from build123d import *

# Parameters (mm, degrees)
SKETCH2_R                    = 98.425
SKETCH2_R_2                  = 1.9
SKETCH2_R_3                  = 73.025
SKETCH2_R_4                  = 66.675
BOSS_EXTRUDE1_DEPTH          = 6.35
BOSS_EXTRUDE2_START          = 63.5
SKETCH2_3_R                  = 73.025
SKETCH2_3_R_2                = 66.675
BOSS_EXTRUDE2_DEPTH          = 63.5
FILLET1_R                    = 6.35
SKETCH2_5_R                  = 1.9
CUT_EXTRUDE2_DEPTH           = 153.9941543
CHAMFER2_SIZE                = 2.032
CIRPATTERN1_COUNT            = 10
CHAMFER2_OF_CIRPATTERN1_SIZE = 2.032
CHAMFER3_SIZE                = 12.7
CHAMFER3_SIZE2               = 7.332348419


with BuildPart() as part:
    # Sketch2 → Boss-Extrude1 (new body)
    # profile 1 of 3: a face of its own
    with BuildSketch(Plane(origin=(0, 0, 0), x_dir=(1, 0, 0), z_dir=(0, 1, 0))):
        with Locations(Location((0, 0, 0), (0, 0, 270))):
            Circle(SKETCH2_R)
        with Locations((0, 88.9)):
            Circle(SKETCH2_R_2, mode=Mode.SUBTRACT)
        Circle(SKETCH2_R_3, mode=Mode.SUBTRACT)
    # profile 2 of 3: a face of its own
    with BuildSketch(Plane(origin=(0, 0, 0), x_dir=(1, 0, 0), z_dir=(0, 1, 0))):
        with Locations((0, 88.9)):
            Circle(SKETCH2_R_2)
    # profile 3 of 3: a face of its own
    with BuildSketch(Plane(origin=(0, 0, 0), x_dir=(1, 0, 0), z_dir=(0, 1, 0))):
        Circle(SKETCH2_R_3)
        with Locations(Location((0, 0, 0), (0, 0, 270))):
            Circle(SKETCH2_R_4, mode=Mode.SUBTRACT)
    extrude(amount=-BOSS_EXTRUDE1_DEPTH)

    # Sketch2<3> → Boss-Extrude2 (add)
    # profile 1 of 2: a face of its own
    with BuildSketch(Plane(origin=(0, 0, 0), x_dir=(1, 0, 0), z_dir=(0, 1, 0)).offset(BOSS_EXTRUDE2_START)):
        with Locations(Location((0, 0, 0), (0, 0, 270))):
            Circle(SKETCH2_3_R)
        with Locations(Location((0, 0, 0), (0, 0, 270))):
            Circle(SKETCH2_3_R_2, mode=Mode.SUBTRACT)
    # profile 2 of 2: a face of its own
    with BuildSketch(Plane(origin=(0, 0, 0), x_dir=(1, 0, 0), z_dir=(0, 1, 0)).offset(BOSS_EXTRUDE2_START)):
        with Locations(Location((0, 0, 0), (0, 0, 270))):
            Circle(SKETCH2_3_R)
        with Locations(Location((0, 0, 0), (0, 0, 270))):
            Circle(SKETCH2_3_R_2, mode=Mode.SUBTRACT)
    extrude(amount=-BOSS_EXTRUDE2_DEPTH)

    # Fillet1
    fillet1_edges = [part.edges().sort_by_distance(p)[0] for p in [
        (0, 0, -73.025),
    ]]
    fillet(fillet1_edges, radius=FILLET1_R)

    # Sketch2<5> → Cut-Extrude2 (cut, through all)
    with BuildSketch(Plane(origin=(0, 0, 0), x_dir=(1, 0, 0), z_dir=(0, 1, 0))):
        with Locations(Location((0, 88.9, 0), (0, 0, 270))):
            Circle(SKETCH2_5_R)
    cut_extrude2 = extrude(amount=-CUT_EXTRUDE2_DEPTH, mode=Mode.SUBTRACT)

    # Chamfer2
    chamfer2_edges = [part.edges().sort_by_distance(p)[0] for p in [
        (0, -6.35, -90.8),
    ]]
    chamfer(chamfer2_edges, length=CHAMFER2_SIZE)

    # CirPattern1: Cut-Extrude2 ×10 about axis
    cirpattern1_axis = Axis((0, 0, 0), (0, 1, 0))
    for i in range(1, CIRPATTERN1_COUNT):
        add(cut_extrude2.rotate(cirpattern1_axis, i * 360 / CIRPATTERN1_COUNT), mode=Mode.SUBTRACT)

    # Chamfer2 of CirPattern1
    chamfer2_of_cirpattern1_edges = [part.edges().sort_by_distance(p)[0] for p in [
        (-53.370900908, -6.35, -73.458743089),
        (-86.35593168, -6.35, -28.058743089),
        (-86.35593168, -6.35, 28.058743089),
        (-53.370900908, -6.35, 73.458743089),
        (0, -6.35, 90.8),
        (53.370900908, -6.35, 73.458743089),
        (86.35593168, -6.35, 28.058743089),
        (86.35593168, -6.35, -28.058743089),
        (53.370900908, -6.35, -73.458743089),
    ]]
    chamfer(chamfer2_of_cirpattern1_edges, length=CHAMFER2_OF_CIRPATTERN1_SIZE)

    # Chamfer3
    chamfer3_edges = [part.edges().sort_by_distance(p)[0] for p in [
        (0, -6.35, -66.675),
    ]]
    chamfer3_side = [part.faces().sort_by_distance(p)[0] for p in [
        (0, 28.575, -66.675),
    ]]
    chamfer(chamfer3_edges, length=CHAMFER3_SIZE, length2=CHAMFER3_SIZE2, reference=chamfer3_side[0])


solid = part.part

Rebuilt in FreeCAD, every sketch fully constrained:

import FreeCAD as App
import Part
import Sketcher
from FreeCAD import Vector
Q = App.Units.Quantity


def edges_at(feature, points):
    """Names of the edges that pass closest to the given points."""
    edges = feature.Shape.Edges
    near = lambda p: min(range(len(edges)), key=lambda i: edges[i].distToShape(Part.Vertex(*p))[0])
    return sorted({f"Edge{near(p) + 1}" for p in points})

doc = App.newDocument("Part")
body = doc.addObject("PartDesign::Body", "Body")

# Sketch on XZ plane
sketch1 = body.newObject("Sketcher::SketchObject", "Sketch")
sketch1.AttachmentSupport = (doc.getObject("XZ_Plane"), [""])
sketch1.MapMode = "FlatFace"
sketch1.addGeometry(Part.Circle(Vector(0, 0, 0), Vector(0, 0, 1), 98), False)
sketch1.addGeometry(Part.Circle(Vector(0, 0, 0), Vector(0, 0, 1), 67), False)
sketch1.addConstraint(Sketcher.Constraint("Coincident", 0, 3, -1, 1))
sketch1.addConstraint(Sketcher.Constraint("Coincident", 1, 3, -1, 1))
sketch1.addConstraint(Sketcher.Constraint("Diameter", 0, Q("7.75 in")))
sketch1.addConstraint(Sketcher.Constraint("Diameter", 1, Q("5.25 in")))
pad1 = body.newObject("PartDesign::Pad", "Pad")
pad1.Profile = sketch1
pad1.Length = Q("0.25 in")

# Sketch on XZ plane
sketch2 = body.newObject("Sketcher::SketchObject", "Sketch001")
sketch2.AttachmentSupport = (doc.getObject("XZ_Plane"), [""])
sketch2.MapMode = "FlatFace"
sketch2.AttachmentOffset = App.Placement(Vector(0, 0, -2.5 * 25.4), App.Rotation())
sketch2.addGeometry(Part.Circle(Vector(0, 0, 0), Vector(0, 0, 1), 73), False)
sketch2.addGeometry(Part.Circle(Vector(0, 0, 0), Vector(0, 0, 1), 67), False)
sketch2.addConstraint(Sketcher.Constraint("Coincident", 0, 3, -1, 1))
sketch2.addConstraint(Sketcher.Constraint("Coincident", 1, 3, -1, 1))
sketch2.addConstraint(Sketcher.Constraint("Diameter", 0, Q("5.75 in")))
sketch2.addConstraint(Sketcher.Constraint("Diameter", 1, Q("5.25 in")))
pad2 = body.newObject("PartDesign::Pad", "Pad001")
pad2.Profile = sketch2
pad2.Length = Q("2.5 in")
doc.recompute()

fillet = body.newObject("PartDesign::Fillet", "Fillet")
fillet.Base = (pad2, edges_at(pad2, [(0, 0, -73.025)]))
fillet.Radius = Q("0.25 in")

# Sketch on XZ plane
sketch3 = body.newObject("Sketcher::SketchObject", "Sketch002")
sketch3.AttachmentSupport = (doc.getObject("XZ_Plane"), [""])
sketch3.MapMode = "FlatFace"
sketch3.addGeometry(Part.Circle(Vector(0, -88.9, 0), Vector(0, 0, 1), 1.9), False)
sketch3.addConstraint(Sketcher.Constraint("PointOnObject", 0, 3, -2))
sketch3.addConstraint(Sketcher.Constraint("DistanceY", 0, 3, -1, 1, Q("3.5 in")))
sketch3.addConstraint(Sketcher.Constraint("Diameter", 0, 3.8))
pocket1 = body.newObject("PartDesign::Pocket", "Pocket")
pocket1.Profile = sketch3
pocket1.Type = "ThroughAll"
pocket1.Reversed = True
doc.recompute()

chamfer = body.newObject("PartDesign::Chamfer", "Chamfer")
chamfer.Base = (pocket1, edges_at(pocket1, [(0, -6.35, -90.8)]))
chamfer.Size = Q("0.08 in")
doc.recompute()

polarpattern = body.newObject("PartDesign::PolarPattern", "PolarPattern")
polarpattern.Originals = [pocket1]
polarpattern.Axis = (doc.getObject("Y_Axis"), [""])
polarpattern.Angle = 360
polarpattern.Occurrences = 10
body.Tip = polarpattern
doc.recompute()

chamfer2 = body.newObject("PartDesign::Chamfer", "Chamfer001")
chamfer2.Base = (polarpattern, edges_at(polarpattern, [
    (-53.371, -6.35, -73.459),
    (-86.356, -6.35, -28.059),
    (-86.356, -6.35, 28.059),
    (-53.371, -6.35, 73.459),
    (0, -6.35, 90.8),
    (53.371, -6.35, 73.459),
    (86.356, -6.35, 28.059),
    (86.356, -6.35, -28.059),
    (53.371, -6.35, -73.459),
]))
chamfer2.Size = Q("0.08 in")
doc.recompute()

chamfer3 = body.newObject("PartDesign::Chamfer", "Chamfer002")
chamfer3.Base = (chamfer2, edges_at(chamfer2, [(0, -6.35, -66.675)]))
chamfer3.ChamferType = "Two distances"
chamfer3.Size = Q("0.5 in")
chamfer3.Size2 = 7.332348
chamfer3.FlipDirection = True

doc.recompute()
